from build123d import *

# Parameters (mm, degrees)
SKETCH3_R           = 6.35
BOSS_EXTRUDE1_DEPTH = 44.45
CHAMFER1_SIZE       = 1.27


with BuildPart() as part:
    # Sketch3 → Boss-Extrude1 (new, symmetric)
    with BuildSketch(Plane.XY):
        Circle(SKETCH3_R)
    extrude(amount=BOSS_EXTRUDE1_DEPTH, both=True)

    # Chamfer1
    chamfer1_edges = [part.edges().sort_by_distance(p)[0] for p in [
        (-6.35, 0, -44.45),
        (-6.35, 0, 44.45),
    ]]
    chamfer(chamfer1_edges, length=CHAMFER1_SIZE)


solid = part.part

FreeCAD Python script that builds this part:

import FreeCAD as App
import Part
import Sketcher
from FreeCAD import Vector
Q = App.Units.Quantity


def edges_at(feature, points):
    """Names of the edges that pass closest to the given points."""
    edges = feature.Shape.Edges
    near = lambda p: min(range(len(edges)), key=lambda i: edges[i].distToShape(Part.Vertex(*p))[0])
    return sorted({f"Edge{near(p) + 1}" for p in points})

doc = App.newDocument("Part")
body = doc.addObject("PartDesign::Body", "Body")

sketch1 = doc.addObject("Sketcher::SketchObject", "Sketch")
body.addObject(sketch1)
sketch1.AttachmentSupport = (doc.XY_Plane, [""])
sketch1.MapMode = "FlatFace"
sketch1.addGeometry(Part.Circle(Vector(0, 0, 0), Vector(0, 0, 1), 6.35), False)
sketch1.addConstraint(Sketcher.Constraint("Coincident", 0, 3, -1, 1))
sketch1.addConstraint(Sketcher.Constraint("Diameter", 0, Q("0.5 in")))
pad1 = doc.addObject("PartDesign::Pad", "Pad")
body.addObject(pad1)
pad1.Profile = sketch1
pad1.Length = Q("3.5 in")
pad1.Midplane = True
doc.recompute()

chamfer = doc.addObject("PartDesign::Chamfer", "Chamfer")
body.addObject(chamfer)
chamfer.Base = (pad1, edges_at(pad1, [(-6.35, 0, -44.45), (-6.35, 0, 44.45)]))
chamfer.Size = Q("0.05 in")

doc.recompute()
